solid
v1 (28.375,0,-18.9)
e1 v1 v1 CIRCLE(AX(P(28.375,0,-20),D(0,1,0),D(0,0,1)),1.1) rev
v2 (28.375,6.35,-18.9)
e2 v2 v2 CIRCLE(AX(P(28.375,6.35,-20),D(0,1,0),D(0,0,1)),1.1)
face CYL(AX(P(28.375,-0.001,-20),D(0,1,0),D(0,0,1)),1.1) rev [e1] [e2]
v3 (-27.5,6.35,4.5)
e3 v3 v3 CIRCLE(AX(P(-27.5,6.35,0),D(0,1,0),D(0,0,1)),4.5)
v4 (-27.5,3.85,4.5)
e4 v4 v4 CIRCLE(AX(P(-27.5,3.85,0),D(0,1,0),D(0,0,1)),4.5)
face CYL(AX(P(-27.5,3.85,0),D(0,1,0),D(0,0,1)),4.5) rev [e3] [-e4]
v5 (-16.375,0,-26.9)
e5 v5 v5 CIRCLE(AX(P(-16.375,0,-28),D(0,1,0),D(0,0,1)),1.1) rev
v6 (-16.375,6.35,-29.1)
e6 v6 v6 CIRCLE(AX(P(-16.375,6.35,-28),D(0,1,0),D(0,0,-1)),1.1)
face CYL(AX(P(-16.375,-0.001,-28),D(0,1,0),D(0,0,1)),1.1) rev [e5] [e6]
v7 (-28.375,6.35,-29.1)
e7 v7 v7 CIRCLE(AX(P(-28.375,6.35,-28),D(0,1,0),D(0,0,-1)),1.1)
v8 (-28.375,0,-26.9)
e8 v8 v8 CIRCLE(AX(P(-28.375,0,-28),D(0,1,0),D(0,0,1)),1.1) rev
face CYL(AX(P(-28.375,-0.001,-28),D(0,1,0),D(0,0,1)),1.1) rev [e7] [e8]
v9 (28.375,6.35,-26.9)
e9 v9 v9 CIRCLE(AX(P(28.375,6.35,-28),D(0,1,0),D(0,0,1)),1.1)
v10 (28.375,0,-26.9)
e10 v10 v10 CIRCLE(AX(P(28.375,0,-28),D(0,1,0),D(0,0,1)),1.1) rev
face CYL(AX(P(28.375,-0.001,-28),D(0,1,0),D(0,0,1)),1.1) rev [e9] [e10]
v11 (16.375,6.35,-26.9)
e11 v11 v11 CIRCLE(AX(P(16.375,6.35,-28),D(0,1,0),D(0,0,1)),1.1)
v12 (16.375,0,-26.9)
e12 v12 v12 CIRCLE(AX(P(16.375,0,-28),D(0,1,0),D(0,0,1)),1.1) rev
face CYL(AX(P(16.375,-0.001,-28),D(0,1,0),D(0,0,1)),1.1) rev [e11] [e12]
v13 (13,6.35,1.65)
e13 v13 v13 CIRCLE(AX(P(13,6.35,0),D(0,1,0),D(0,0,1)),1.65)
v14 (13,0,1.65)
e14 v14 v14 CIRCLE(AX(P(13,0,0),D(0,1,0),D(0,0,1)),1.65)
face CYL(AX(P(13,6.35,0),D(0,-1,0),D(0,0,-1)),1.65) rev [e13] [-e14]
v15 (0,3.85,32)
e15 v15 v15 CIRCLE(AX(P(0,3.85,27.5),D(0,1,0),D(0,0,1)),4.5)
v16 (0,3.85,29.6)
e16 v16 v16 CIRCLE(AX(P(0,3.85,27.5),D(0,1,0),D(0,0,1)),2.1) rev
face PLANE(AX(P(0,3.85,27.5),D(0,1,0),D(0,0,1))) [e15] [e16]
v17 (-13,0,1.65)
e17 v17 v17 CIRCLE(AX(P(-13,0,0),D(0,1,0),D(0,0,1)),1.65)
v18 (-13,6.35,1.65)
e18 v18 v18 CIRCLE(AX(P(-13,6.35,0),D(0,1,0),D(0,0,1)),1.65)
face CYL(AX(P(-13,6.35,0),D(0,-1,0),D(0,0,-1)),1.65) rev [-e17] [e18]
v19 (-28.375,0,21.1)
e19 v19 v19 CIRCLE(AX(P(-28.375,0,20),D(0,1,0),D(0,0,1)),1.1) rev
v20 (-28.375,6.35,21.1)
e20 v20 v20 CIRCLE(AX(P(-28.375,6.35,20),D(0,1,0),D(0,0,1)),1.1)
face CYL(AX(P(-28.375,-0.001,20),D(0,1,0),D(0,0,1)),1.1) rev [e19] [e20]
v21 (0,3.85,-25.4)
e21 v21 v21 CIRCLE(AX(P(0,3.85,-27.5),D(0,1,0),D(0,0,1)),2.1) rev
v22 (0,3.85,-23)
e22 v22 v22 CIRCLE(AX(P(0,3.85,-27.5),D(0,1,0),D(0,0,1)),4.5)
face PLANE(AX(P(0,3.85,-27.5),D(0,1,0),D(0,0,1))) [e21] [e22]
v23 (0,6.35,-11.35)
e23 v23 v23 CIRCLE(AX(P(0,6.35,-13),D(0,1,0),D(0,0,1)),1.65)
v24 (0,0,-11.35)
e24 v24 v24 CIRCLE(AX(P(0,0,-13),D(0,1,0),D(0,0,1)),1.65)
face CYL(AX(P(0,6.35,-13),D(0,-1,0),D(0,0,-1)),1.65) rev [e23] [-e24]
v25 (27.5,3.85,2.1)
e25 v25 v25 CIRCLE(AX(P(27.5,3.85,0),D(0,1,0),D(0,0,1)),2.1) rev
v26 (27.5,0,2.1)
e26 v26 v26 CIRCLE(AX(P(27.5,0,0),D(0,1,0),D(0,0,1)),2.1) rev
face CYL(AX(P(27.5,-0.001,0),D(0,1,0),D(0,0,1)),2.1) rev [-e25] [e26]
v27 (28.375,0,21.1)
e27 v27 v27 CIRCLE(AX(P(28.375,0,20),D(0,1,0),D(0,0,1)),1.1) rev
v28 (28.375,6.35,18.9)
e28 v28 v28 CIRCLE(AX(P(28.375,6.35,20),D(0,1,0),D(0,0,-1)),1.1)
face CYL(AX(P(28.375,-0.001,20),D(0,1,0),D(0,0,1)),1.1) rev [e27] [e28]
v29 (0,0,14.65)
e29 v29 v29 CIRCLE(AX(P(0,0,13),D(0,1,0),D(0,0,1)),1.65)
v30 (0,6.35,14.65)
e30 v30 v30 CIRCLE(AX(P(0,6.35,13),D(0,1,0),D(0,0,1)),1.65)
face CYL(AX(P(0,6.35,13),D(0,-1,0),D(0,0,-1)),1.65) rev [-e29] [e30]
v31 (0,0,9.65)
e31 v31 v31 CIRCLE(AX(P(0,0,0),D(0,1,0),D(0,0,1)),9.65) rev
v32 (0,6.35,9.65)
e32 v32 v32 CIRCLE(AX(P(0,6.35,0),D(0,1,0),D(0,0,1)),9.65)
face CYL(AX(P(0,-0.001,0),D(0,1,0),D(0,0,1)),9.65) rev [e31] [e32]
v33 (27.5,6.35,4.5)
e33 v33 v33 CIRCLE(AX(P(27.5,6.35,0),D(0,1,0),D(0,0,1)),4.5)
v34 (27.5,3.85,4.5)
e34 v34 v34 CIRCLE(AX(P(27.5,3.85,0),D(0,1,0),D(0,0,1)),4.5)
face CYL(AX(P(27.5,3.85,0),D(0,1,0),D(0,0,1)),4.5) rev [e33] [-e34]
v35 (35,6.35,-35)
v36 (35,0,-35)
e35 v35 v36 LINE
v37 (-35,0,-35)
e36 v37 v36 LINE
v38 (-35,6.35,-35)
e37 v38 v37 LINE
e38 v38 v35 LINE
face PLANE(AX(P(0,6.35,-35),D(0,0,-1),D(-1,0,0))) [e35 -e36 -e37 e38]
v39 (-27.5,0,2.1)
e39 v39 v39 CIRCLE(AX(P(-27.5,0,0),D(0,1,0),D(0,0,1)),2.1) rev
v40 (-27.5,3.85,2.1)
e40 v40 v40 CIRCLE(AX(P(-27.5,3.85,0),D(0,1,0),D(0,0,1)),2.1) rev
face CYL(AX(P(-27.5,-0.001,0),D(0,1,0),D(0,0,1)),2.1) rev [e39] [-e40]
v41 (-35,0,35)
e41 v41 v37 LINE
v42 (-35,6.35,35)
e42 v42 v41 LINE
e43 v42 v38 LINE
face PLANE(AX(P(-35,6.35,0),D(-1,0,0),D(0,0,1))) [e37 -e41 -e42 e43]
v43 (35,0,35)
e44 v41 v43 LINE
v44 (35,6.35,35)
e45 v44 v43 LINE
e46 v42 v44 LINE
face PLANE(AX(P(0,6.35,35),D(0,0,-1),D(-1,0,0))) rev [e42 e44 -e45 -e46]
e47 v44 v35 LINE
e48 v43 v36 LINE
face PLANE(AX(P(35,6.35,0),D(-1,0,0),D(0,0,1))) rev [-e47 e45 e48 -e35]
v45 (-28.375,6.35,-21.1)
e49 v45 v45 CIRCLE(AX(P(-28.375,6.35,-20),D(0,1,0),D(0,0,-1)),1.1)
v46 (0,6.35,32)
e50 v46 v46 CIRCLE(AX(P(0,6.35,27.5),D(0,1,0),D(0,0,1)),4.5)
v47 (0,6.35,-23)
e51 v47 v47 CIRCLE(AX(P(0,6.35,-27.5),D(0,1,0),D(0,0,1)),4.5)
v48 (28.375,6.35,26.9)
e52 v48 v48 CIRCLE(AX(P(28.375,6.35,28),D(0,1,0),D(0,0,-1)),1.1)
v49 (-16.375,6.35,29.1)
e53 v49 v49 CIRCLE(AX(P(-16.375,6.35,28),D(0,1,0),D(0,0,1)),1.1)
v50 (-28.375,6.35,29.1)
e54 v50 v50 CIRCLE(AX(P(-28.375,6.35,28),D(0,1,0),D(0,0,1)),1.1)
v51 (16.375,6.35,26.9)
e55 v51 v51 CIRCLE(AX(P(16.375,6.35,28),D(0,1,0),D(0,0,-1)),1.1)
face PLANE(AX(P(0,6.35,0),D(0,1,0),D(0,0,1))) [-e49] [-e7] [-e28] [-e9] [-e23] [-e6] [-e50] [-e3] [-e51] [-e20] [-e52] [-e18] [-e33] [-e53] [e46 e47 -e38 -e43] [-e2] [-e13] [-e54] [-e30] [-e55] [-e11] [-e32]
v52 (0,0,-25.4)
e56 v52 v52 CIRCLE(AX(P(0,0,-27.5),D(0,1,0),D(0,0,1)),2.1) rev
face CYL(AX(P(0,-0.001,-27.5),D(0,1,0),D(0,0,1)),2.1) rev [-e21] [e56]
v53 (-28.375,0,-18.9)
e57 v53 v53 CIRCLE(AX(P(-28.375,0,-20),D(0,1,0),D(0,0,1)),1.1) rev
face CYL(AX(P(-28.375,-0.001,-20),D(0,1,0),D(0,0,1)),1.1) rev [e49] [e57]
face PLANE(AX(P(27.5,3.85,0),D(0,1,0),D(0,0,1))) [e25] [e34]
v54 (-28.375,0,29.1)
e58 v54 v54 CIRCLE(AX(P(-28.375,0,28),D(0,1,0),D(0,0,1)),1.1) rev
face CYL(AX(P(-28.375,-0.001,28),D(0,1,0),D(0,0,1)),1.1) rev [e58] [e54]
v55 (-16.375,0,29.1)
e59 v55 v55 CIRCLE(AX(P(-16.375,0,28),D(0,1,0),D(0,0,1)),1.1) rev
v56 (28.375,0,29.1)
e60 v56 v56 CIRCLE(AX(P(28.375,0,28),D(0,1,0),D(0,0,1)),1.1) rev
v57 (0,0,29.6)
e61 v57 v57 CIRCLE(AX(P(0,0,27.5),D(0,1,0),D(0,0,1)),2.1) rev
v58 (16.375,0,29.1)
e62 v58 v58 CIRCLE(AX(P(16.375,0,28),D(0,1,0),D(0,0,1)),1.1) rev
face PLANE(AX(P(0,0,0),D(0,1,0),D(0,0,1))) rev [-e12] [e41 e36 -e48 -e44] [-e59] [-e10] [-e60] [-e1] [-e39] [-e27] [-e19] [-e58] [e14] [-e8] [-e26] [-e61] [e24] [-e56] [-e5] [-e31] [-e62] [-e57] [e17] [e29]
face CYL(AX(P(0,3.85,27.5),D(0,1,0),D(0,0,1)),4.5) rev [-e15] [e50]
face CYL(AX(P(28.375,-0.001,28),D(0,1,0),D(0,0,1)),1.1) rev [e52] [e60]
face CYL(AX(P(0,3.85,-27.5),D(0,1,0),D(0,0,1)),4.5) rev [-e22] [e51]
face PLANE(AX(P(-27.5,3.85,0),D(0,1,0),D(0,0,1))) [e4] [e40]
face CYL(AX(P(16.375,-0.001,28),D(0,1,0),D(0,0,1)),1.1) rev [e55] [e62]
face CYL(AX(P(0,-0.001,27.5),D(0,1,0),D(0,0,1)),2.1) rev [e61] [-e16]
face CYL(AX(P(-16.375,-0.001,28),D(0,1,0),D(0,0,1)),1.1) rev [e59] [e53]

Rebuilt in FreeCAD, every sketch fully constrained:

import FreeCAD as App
import Part
import Sketcher

doc = App.newDocument("Part")
body = doc.addObject("PartDesign::Body", "Body")

sketch1 = body.newObject("Sketcher::SketchObject", "Sketch")
sketch1.AttachmentSupport = (doc.getObject("XZ_Plane"), [""])
sketch1.MapMode = "FlatFace"
sketch1.addGeometry(Part.LineSegment(App.Vector(-35, -35, 0), App.Vector(-35, 35, 0)), False)
sketch1.addGeometry(Part.LineSegment(App.Vector(-35, 35, 0), App.Vector(35, 35, 0)), False)
sketch1.addGeometry(Part.LineSegment(App.Vector(35, 35, 0), App.Vector(35, -35, 0)), False)
sketch1.addGeometry(Part.LineSegment(App.Vector(35, -35, 0), App.Vector(-35, -35, 0)), False)
sketch1.addGeometry(Part.Circle(App.Vector(0, 13, 0), App.Vector(0, 0, 1), 1.6), False)
sketch1.addGeometry(Part.Circle(App.Vector(-13, 0, 0), App.Vector(0, 0, 1), 1.6), False)
sketch1.addGeometry(Part.Circle(App.Vector(13, 0, 0), App.Vector(0, 0, 1), 1.6), False)
sketch1.addGeometry(Part.Circle(App.Vector(0, -13, 0), App.Vector(0, 0, 1), 1.6), False)
sketch1.addConstraint(Sketcher.Constraint("Coincident", 0, 2, 1, 1))
sketch1.addConstraint(Sketcher.Constraint("Coincident", 1, 2, 2, 1))
sketch1.addConstraint(Sketcher.Constraint("Coincident", 2, 2, 3, 1))
sketch1.addConstraint(Sketcher.Constraint("Coincident", 3, 2, 0, 1))
sketch1.addConstraint(Sketcher.Constraint("Vertical", 0))
sketch1.addConstraint(Sketcher.Constraint("Horizontal", 1))
sketch1.addConstraint(Sketcher.Constraint("Vertical", 2))
sketch1.addConstraint(Sketcher.Constraint("Horizontal", 3))
sketch1.addConstraint(Sketcher.Constraint("Equal", 4, 5))
sketch1.addConstraint(Sketcher.Constraint("Equal", 5, 6))
sketch1.addConstraint(Sketcher.Constraint("Equal", 6, 7))
sketch1.addConstraint(Sketcher.Constraint("Symmetric", 5, 3, 6, 3, -1, 1))
sketch1.addConstraint(Sketcher.Constraint("Symmetric", 4, 3, 7, 3, -1, 1))
sketch1.addConstraint(Sketcher.Constraint("Symmetric", 0, 2, 2, 2, -1, 1))
sketch1.addConstraint(Sketcher.Constraint("PointOnObject", 4, 3, -2))
sketch1.addConstraint(Sketcher.Constraint("PointOnObject", 5, 3, -1))
sketch1.addConstraint(Sketcher.Constraint("Equal", 3, 0))
sketch1.addConstraint(Sketcher.Constraint("Diameter", 4, 3.3))
sketch1.addConstraint(Sketcher.Constraint("DistanceX", 1, 1, 1, 2, 70.0))
sketch1.addConstraint(Sketcher.Constraint("DistanceY", -1, 1, 4, 3, 13.0))
sketch1.addConstraint(Sketcher.Constraint("DistanceX", 5, 3, -1, 1, 13.0))
pad1 = body.newObject("PartDesign::Pad", "Pad")
pad1.Profile = sketch1
pad1.Length = 6.35
pad1.Reversed = True

sketch2 = body.newObject("Sketcher::SketchObject", "Sketch001")
sketch2.AttachmentSupport = (doc.getObject("XZ_Plane"), [""])
sketch2.MapMode = "FlatFace"
sketch2.AttachmentOffset = App.Placement(App.Vector(0, 0, -6.35), App.Rotation())
sketch2.addGeometry(Part.Circle(App.Vector(16.4, -28, 0), App.Vector(0, 0, 1), 1.1), False)
sketch2.addConstraint(Sketcher.Constraint("Diameter", 0, 2.2))
sketch2.addConstraint(Sketcher.Constraint("DistanceY", 0, 3, -1, 1, 28.0))
sketch2.addConstraint(Sketcher.Constraint("DistanceX", -1, 1, 0, 3, 16.375))
pocket1 = body.newObject("PartDesign::Pocket", "Pocket")
pocket1.Profile = sketch2
pocket1.Type = "UpToFirst"
pocket1.Reversed = True

sketch3 = body.newObject("Sketcher::SketchObject", "Sketch002")
sketch3.AttachmentSupport = (doc.getObject("XZ_Plane"), [""])
sketch3.MapMode = "FlatFace"
sketch3.AttachmentOffset = App.Placement(App.Vector(0, 0, -6.35), App.Rotation())
sketch3.addGeometry(Part.Circle(App.Vector(28.4, -28, 0), App.Vector(0, 0, 1), 1.1), False)
sketch3.addConstraint(Sketcher.Constraint("Diameter", 0, 2.2))
sketch3.addConstraint(Sketcher.Constraint("DistanceY", 0, 3, -1, 1, 28.0))
sketch3.addConstraint(Sketcher.Constraint("DistanceX", -1, 1, 0, 3, 28.375))
pocket2 = body.newObject("PartDesign::Pocket", "Pocket001")
pocket2.Profile = sketch3
pocket2.Type = "UpToFirst"
pocket2.Reversed = True

sketch4 = body.newObject("Sketcher::SketchObject", "Sketch003")
sketch4.AttachmentSupport = (doc.getObject("XZ_Plane"), [""])
sketch4.MapMode = "FlatFace"
sketch4.AttachmentOffset = App.Placement(App.Vector(0, 0, -6.35), App.Rotation())
sketch4.addGeometry(Part.Circle(App.Vector(28.4, -20, 0), App.Vector(0, 0, 1), 1.1), False)
sketch4.addConstraint(Sketcher.Constraint("Diameter", 0, 2.2))
sketch4.addConstraint(Sketcher.Constraint("DistanceY", 0, 3, -1, 1, 20.0))
sketch4.addConstraint(Sketcher.Constraint("DistanceX", -1, 1, 0, 3, 28.375))
pocket3 = body.newObject("PartDesign::Pocket", "Pocket002")
pocket3.Profile = sketch4
pocket3.Type = "UpToFirst"
pocket3.Reversed = True

sketch5 = body.newObject("Sketcher::SketchObject", "Sketch004")
sketch5.AttachmentSupport = (doc.getObject("XZ_Plane"), [""])
sketch5.MapMode = "FlatFace"
sketch5.AttachmentOffset = App.Placement(App.Vector(0, 0, -6.35), App.Rotation())
sketch5.addGeometry(Part.Circle(App.Vector(-28.4, -20, 0), App.Vector(0, 0, 1), 1.1), False)
sketch5.addConstraint(Sketcher.Constraint("Diameter", 0, 2.2))
sketch5.addConstraint(Sketcher.Constraint("DistanceY", 0, 3, -1, 1, 20.0))
sketch5.addConstraint(Sketcher.Constraint("DistanceX", 0, 3, -1, 1, 28.375))
pocket4 = body.newObject("PartDesign::Pocket", "Pocket003")
pocket4.Profile = sketch5
pocket4.Type = "UpToFirst"
pocket4.Reversed = True

sketch6 = body.newObject("Sketcher::SketchObject", "Sketch005")
sketch6.AttachmentSupport = (doc.getObject("XZ_Plane"), [""])
sketch6.MapMode = "FlatFace"
sketch6.AttachmentOffset = App.Placement(App.Vector(0, 0, -6.35), App.Rotation())
sketch6.addGeometry(Part.Circle(App.Vector(-28.4, -28, 0), App.Vector(0, 0, 1), 1.1), False)
sketch6.addConstraint(Sketcher.Constraint("Diameter", 0, 2.2))
sketch6.addConstraint(Sketcher.Constraint("DistanceY", 0, 3, -1, 1, 28.0))
sketch6.addConstraint(Sketcher.Constraint("DistanceX", 0, 3, -1, 1, 28.375))
pocket5 = body.newObject("PartDesign::Pocket", "Pocket004")
pocket5.Profile = sketch6
pocket5.Type = "UpToFirst"
pocket5.Reversed = True

sketch7 = body.newObject("Sketcher::SketchObject", "Sketch006")
sketch7.AttachmentSupport = (doc.getObject("XZ_Plane"), [""])
sketch7.MapMode = "FlatFace"
sketch7.AttachmentOffset = App.Placement(App.Vector(0, 0, -6.35), App.Rotation())
sketch7.addGeometry(Part.Circle(App.Vector(-16.4, -28, 0), App.Vector(0, 0, 1), 1.1), False)
sketch7.addConstraint(Sketcher.Constraint("Diameter", 0, 2.2))
sketch7.addConstraint(Sketcher.Constraint("DistanceY", 0, 3, -1, 1, 28.0))
sketch7.addConstraint(Sketcher.Constraint("DistanceX", 0, 3, -1, 1, 16.375))
pocket6 = body.newObject("PartDesign::Pocket", "Pocket005")
pocket6.Profile = sketch7
pocket6.Type = "UpToFirst"
pocket6.Reversed = True

sketch8 = body.newObject("Sketcher::SketchObject", "Sketch007")
sketch8.AttachmentSupport = (doc.getObject("XZ_Plane"), [""])
sketch8.MapMode = "FlatFace"
sketch8.AttachmentOffset = App.Placement(App.Vector(0, 0, -6.35), App.Rotation())
sketch8.addGeometry(Part.Circle(App.Vector(28.4, 20, 0), App.Vector(0, 0, 1), 1.1), False)
sketch8.addConstraint(Sketcher.Constraint("Diameter", 0, 2.2))
sketch8.addConstraint(Sketcher.Constraint("DistanceY", -1, 1, 0, 3, 20.0))
sketch8.addConstraint(Sketcher.Constraint("DistanceX", -1, 1, 0, 3, 28.375))
pocket7 = body.newObject("PartDesign::Pocket", "Pocket006")
pocket7.Profile = sketch8
pocket7.Type = "UpToFirst"
pocket7.Reversed = True

sketch9 = body.newObject("Sketcher::SketchObject", "Sketch008")
sketch9.AttachmentSupport = (doc.getObject("XZ_Plane"), [""])
sketch9.MapMode = "FlatFace"
sketch9.AttachmentOffset = App.Placement(App.Vector(0, 0, -6.35), App.Rotation())
sketch9.addGeometry(Part.Circle(App.Vector(28.4, 28, 0), App.Vector(0, 0, 1), 1.1), False)
sketch9.addConstraint(Sketcher.Constraint("Diameter", 0, 2.2))
sketch9.addConstraint(Sketcher.Constraint("DistanceY", -1, 1, 0, 3, 28.0))
sketch9.addConstraint(Sketcher.Constraint("DistanceX", -1, 1, 0, 3, 28.375))
pocket8 = body.newObject("PartDesign::Pocket", "Pocket007")
pocket8.Profile = sketch9
pocket8.Type = "UpToFirst"
pocket8.Reversed = True

sketch10 = body.newObject("Sketcher::SketchObject", "Sketch009")
sketch10.AttachmentSupport = (doc.getObject("XZ_Plane"), [""])
sketch10.MapMode = "FlatFace"
sketch10.AttachmentOffset = App.Placement(App.Vector(0, 0, -6.35), App.Rotation())
sketch10.addGeometry(Part.Circle(App.Vector(16.4, 28, 0), App.Vector(0, 0, 1), 1.1), False)
sketch10.addConstraint(Sketcher.Constraint("Diameter", 0, 2.2))
sketch10.addConstraint(Sketcher.Constraint("DistanceY", -1, 1, 0, 3, 28.0))
sketch10.addConstraint(Sketcher.Constraint("DistanceX", -1, 1, 0, 3, 16.375))
pocket9 = body.newObject("PartDesign::Pocket", "Pocket008")
pocket9.Profile = sketch10
pocket9.Type = "UpToFirst"
pocket9.Reversed = True

sketch11 = body.newObject("Sketcher::SketchObject", "Sketch010")
sketch11.AttachmentSupport = (doc.getObject("XZ_Plane"), [""])
sketch11.MapMode = "FlatFace"
sketch11.AttachmentOffset = App.Placement(App.Vector(0, 0, -6.35), App.Rotation())
sketch11.addGeometry(Part.Circle(App.Vector(-16.4, 28, 0), App.Vector(0, 0, 1), 1.1), False)
sketch11.addConstraint(Sketcher.Constraint("Diameter", 0, 2.2))
sketch11.addConstraint(Sketcher.Constraint("DistanceY", -1, 1, 0, 3, 28.0))
sketch11.addConstraint(Sketcher.Constraint("DistanceX", 0, 3, -1, 1, 16.375))
pocket10 = body.newObject("PartDesign::Pocket", "Pocket009")
pocket10.Profile = sketch11
pocket10.Type = "UpToFirst"
pocket10.Reversed = True

sketch12 = body.newObject("Sketcher::SketchObject", "Sketch011")
sketch12.AttachmentSupport = (doc.getObject("XZ_Plane"), [""])
sketch12.MapMode = "FlatFace"
sketch12.AttachmentOffset = App.Placement(App.Vector(0, 0, -6.35), App.Rotation())
sketch12.addGeometry(Part.Circle(App.Vector(-28.4, 20, 0), App.Vector(0, 0, 1), 1.1), False)
sketch12.addConstraint(Sketcher.Constraint("Diameter", 0, 2.2))
sketch12.addConstraint(Sketcher.Constraint("DistanceY", -1, 1, 0, 3, 20.0))
sketch12.addConstraint(Sketcher.Constraint("DistanceX", 0, 3, -1, 1, 28.375))
pocket11 = body.newObject("PartDesign::Pocket", "Pocket010")
pocket11.Profile = sketch12
pocket11.Type = "UpToFirst"
pocket11.Reversed = True

sketch13 = body.newObject("Sketcher::SketchObject", "Sketch012")
sketch13.AttachmentSupport = (doc.getObject("XZ_Plane"), [""])
sketch13.MapMode = "FlatFace"
sketch13.AttachmentOffset = App.Placement(App.Vector(0, 0, -6.35), App.Rotation())
sketch13.addGeometry(Part.Circle(App.Vector(-28.4, 28, 0), App.Vector(0, 0, 1), 1.1), False)
sketch13.addConstraint(Sketcher.Constraint("Diameter", 0, 2.2))
sketch13.addConstraint(Sketcher.Constraint("DistanceY", -1, 1, 0, 3, 28.0))
sketch13.addConstraint(Sketcher.Constraint("DistanceX", 0, 3, -1, 1, 28.375))
pocket12 = body.newObject("PartDesign::Pocket", "Pocket011")
pocket12.Profile = sketch13
pocket12.Type = "UpToFirst"
pocket12.Reversed = True

sketch14 = body.newObject("Sketcher::SketchObject", "Sketch013")
sketch14.AttachmentSupport = (doc.getObject("XZ_Plane"), [""])
sketch14.MapMode = "FlatFace"
sketch14.AttachmentOffset = App.Placement(App.Vector(0, 0, -6.35), App.Rotation())
sketch14.addGeometry(Part.Circle(App.Vector(0, 0, 0), App.Vector(0, 0, 1), 10), False)
sketch14.addConstraint(Sketcher.Constraint("Coincident", 0, 3, -1, 1))
sketch14.addConstraint(Sketcher.Constraint("Diameter", 0, 19.3))
pocket13 = body.newObject("PartDesign::Pocket", "Pocket012")
pocket13.Profile = sketch14
pocket13.Type = "UpToFirst"
pocket13.Reversed = True

sketch15 = body.newObject("Sketcher::SketchObject", "Sketch014")
sketch15.AttachmentSupport = (doc.getObject("XZ_Plane"), [""])
sketch15.MapMode = "FlatFace"
sketch15.AttachmentOffset = App.Placement(App.Vector(0, 0, -6.35), App.Rotation())
sketch15.addGeometry(Part.Circle(App.Vector(0, -27.5, 0), App.Vector(0, 0, 1), 2.1), False)
sketch15.addConstraint(Sketcher.Constraint("PointOnObject", 0, 3, -2))
sketch15.addConstraint(Sketcher.Constraint("Diameter", 0, 4.2))
sketch15.addConstraint(Sketcher.Constraint("DistanceY", 0, 3, -1, 1, 27.5))
pocket14 = body.newObject("PartDesign::Pocket", "Pocket013")
pocket14.Profile = sketch15
pocket14.Type = "UpToFirst"
pocket14.Reversed = True

sketch16 = body.newObject("Sketcher::SketchObject", "Sketch015")
sketch16.AttachmentSupport = (doc.getObject("XZ_Plane"), [""])
sketch16.MapMode = "FlatFace"
sketch16.AttachmentOffset = App.Placement(App.Vector(0, 0, -6.35), App.Rotation())
sketch16.addGeometry(Part.Circle(App.Vector(27.5, 0, 0), App.Vector(0, 0, 1), 2.1), False)
sketch16.addConstraint(Sketcher.Constraint("PointOnObject", 0, 3, -1))
sketch16.addConstraint(Sketcher.Constraint("Diameter", 0, 4.2))
sketch16.addConstraint(Sketcher.Constraint("DistanceX", -1, 1, 0, 3, 27.5))
pocket15 = body.newObject("PartDesign::Pocket", "Pocket014")
pocket15.Profile = sketch16
pocket15.Type = "UpToFirst"
pocket15.Reversed = True

sketch17 = body.newObject("Sketcher::SketchObject", "Sketch016")
sketch17.AttachmentSupport = (doc.getObject("XZ_Plane"), [""])
sketch17.MapMode = "FlatFace"
sketch17.AttachmentOffset = App.Placement(App.Vector(0, 0, -6.35), App.Rotation())
sketch17.addGeometry(Part.Circle(App.Vector(0, 27.5, 0), App.Vector(0, 0, 1), 2.1), False)
sketch17.addConstraint(Sketcher.Constraint("PointOnObject", 0, 3, -2))
sketch17.addConstraint(Sketcher.Constraint("Diameter", 0, 4.2))
sketch17.addConstraint(Sketcher.Constraint("DistanceY", -1, 1, 0, 3, 27.5))
pocket16 = body.newObject("PartDesign::Pocket", "Pocket015")
pocket16.Profile = sketch17
pocket16.Type = "UpToFirst"
pocket16.Reversed = True

sketch18 = body.newObject("Sketcher::SketchObject", "Sketch017")
sketch18.AttachmentSupport = (doc.getObject("XZ_Plane"), [""])
sketch18.MapMode = "FlatFace"
sketch18.AttachmentOffset = App.Placement(App.Vector(0, 0, -6.35), App.Rotation())
sketch18.addGeometry(Part.Circle(App.Vector(-27.5, 0, 0), App.Vector(0, 0, 1), 2.1), False)
sketch18.addConstraint(Sketcher.Constraint("PointOnObject", 0, 3, -1))
sketch18.addConstraint(Sketcher.Constraint("Diameter", 0, 4.2))
sketch18.addConstraint(Sketcher.Constraint("DistanceX", 0, 3, -1, 1, 27.5))
pocket17 = body.newObject("PartDesign::Pocket", "Pocket016")
pocket17.Profile = sketch18
pocket17.Type = "UpToFirst"
pocket17.Reversed = True

sketch19 = body.newObject("Sketcher::SketchObject", "Sketch018")
sketch19.AttachmentSupport = (doc.getObject("XZ_Plane"), [""])
sketch19.MapMode = "FlatFace"
sketch19.AttachmentOffset = App.Placement(App.Vector(0, 0, -6.35), App.Rotation())
sketch19.addGeometry(Part.Circle(App.Vector(0, -27.5, 0), App.Vector(0, 0, 1), 4.5), False)
sketch19.addGeometry(Part.Circle(App.Vector(27.5, 0, 0), App.Vector(0, 0, 1), 4.5), False)
sketch19.addGeometry(Part.Circle(App.Vector(0, 27.5, 0), App.Vector(0, 0, 1), 4.5), False)
sketch19.addGeometry(Part.Circle(App.Vector(-27.5, 0, 0), App.Vector(0, 0, 1), 4.5), False)
sketch19.addConstraint(Sketcher.Constraint("Equal", 0, 1))
sketch19.addConstraint(Sketcher.Constraint("Equal", 1, 2))
sketch19.addConstraint(Sketcher.Constraint("Equal", 2, 3))
sketch19.addConstraint(Sketcher.Constraint("Symmetric", 0, 3, 2, 3, -1, 1))
sketch19.addConstraint(Sketcher.Constraint("Symmetric", 1, 3, 3, 3, -1, 1))
sketch19.addConstraint(Sketcher.Constraint("PointOnObject", 0, 3, -2))
sketch19.addConstraint(Sketcher.Constraint("PointOnObject", 1, 3, -1))
sketch19.addConstraint(Sketcher.Constraint("Diameter", 0, 9.0))
sketch19.addConstraint(Sketcher.Constraint("DistanceY", 0, 3, 2, 3, 55.0))
sketch19.addConstraint(Sketcher.Constraint("DistanceX", 3, 3, 1, 3, 55.0))
pocket18 = body.newObject("PartDesign::Pocket", "Pocket017")
pocket18.Profile = sketch19
pocket18.Length = 2.5
pocket18.Reversed = True

doc.recompute()
